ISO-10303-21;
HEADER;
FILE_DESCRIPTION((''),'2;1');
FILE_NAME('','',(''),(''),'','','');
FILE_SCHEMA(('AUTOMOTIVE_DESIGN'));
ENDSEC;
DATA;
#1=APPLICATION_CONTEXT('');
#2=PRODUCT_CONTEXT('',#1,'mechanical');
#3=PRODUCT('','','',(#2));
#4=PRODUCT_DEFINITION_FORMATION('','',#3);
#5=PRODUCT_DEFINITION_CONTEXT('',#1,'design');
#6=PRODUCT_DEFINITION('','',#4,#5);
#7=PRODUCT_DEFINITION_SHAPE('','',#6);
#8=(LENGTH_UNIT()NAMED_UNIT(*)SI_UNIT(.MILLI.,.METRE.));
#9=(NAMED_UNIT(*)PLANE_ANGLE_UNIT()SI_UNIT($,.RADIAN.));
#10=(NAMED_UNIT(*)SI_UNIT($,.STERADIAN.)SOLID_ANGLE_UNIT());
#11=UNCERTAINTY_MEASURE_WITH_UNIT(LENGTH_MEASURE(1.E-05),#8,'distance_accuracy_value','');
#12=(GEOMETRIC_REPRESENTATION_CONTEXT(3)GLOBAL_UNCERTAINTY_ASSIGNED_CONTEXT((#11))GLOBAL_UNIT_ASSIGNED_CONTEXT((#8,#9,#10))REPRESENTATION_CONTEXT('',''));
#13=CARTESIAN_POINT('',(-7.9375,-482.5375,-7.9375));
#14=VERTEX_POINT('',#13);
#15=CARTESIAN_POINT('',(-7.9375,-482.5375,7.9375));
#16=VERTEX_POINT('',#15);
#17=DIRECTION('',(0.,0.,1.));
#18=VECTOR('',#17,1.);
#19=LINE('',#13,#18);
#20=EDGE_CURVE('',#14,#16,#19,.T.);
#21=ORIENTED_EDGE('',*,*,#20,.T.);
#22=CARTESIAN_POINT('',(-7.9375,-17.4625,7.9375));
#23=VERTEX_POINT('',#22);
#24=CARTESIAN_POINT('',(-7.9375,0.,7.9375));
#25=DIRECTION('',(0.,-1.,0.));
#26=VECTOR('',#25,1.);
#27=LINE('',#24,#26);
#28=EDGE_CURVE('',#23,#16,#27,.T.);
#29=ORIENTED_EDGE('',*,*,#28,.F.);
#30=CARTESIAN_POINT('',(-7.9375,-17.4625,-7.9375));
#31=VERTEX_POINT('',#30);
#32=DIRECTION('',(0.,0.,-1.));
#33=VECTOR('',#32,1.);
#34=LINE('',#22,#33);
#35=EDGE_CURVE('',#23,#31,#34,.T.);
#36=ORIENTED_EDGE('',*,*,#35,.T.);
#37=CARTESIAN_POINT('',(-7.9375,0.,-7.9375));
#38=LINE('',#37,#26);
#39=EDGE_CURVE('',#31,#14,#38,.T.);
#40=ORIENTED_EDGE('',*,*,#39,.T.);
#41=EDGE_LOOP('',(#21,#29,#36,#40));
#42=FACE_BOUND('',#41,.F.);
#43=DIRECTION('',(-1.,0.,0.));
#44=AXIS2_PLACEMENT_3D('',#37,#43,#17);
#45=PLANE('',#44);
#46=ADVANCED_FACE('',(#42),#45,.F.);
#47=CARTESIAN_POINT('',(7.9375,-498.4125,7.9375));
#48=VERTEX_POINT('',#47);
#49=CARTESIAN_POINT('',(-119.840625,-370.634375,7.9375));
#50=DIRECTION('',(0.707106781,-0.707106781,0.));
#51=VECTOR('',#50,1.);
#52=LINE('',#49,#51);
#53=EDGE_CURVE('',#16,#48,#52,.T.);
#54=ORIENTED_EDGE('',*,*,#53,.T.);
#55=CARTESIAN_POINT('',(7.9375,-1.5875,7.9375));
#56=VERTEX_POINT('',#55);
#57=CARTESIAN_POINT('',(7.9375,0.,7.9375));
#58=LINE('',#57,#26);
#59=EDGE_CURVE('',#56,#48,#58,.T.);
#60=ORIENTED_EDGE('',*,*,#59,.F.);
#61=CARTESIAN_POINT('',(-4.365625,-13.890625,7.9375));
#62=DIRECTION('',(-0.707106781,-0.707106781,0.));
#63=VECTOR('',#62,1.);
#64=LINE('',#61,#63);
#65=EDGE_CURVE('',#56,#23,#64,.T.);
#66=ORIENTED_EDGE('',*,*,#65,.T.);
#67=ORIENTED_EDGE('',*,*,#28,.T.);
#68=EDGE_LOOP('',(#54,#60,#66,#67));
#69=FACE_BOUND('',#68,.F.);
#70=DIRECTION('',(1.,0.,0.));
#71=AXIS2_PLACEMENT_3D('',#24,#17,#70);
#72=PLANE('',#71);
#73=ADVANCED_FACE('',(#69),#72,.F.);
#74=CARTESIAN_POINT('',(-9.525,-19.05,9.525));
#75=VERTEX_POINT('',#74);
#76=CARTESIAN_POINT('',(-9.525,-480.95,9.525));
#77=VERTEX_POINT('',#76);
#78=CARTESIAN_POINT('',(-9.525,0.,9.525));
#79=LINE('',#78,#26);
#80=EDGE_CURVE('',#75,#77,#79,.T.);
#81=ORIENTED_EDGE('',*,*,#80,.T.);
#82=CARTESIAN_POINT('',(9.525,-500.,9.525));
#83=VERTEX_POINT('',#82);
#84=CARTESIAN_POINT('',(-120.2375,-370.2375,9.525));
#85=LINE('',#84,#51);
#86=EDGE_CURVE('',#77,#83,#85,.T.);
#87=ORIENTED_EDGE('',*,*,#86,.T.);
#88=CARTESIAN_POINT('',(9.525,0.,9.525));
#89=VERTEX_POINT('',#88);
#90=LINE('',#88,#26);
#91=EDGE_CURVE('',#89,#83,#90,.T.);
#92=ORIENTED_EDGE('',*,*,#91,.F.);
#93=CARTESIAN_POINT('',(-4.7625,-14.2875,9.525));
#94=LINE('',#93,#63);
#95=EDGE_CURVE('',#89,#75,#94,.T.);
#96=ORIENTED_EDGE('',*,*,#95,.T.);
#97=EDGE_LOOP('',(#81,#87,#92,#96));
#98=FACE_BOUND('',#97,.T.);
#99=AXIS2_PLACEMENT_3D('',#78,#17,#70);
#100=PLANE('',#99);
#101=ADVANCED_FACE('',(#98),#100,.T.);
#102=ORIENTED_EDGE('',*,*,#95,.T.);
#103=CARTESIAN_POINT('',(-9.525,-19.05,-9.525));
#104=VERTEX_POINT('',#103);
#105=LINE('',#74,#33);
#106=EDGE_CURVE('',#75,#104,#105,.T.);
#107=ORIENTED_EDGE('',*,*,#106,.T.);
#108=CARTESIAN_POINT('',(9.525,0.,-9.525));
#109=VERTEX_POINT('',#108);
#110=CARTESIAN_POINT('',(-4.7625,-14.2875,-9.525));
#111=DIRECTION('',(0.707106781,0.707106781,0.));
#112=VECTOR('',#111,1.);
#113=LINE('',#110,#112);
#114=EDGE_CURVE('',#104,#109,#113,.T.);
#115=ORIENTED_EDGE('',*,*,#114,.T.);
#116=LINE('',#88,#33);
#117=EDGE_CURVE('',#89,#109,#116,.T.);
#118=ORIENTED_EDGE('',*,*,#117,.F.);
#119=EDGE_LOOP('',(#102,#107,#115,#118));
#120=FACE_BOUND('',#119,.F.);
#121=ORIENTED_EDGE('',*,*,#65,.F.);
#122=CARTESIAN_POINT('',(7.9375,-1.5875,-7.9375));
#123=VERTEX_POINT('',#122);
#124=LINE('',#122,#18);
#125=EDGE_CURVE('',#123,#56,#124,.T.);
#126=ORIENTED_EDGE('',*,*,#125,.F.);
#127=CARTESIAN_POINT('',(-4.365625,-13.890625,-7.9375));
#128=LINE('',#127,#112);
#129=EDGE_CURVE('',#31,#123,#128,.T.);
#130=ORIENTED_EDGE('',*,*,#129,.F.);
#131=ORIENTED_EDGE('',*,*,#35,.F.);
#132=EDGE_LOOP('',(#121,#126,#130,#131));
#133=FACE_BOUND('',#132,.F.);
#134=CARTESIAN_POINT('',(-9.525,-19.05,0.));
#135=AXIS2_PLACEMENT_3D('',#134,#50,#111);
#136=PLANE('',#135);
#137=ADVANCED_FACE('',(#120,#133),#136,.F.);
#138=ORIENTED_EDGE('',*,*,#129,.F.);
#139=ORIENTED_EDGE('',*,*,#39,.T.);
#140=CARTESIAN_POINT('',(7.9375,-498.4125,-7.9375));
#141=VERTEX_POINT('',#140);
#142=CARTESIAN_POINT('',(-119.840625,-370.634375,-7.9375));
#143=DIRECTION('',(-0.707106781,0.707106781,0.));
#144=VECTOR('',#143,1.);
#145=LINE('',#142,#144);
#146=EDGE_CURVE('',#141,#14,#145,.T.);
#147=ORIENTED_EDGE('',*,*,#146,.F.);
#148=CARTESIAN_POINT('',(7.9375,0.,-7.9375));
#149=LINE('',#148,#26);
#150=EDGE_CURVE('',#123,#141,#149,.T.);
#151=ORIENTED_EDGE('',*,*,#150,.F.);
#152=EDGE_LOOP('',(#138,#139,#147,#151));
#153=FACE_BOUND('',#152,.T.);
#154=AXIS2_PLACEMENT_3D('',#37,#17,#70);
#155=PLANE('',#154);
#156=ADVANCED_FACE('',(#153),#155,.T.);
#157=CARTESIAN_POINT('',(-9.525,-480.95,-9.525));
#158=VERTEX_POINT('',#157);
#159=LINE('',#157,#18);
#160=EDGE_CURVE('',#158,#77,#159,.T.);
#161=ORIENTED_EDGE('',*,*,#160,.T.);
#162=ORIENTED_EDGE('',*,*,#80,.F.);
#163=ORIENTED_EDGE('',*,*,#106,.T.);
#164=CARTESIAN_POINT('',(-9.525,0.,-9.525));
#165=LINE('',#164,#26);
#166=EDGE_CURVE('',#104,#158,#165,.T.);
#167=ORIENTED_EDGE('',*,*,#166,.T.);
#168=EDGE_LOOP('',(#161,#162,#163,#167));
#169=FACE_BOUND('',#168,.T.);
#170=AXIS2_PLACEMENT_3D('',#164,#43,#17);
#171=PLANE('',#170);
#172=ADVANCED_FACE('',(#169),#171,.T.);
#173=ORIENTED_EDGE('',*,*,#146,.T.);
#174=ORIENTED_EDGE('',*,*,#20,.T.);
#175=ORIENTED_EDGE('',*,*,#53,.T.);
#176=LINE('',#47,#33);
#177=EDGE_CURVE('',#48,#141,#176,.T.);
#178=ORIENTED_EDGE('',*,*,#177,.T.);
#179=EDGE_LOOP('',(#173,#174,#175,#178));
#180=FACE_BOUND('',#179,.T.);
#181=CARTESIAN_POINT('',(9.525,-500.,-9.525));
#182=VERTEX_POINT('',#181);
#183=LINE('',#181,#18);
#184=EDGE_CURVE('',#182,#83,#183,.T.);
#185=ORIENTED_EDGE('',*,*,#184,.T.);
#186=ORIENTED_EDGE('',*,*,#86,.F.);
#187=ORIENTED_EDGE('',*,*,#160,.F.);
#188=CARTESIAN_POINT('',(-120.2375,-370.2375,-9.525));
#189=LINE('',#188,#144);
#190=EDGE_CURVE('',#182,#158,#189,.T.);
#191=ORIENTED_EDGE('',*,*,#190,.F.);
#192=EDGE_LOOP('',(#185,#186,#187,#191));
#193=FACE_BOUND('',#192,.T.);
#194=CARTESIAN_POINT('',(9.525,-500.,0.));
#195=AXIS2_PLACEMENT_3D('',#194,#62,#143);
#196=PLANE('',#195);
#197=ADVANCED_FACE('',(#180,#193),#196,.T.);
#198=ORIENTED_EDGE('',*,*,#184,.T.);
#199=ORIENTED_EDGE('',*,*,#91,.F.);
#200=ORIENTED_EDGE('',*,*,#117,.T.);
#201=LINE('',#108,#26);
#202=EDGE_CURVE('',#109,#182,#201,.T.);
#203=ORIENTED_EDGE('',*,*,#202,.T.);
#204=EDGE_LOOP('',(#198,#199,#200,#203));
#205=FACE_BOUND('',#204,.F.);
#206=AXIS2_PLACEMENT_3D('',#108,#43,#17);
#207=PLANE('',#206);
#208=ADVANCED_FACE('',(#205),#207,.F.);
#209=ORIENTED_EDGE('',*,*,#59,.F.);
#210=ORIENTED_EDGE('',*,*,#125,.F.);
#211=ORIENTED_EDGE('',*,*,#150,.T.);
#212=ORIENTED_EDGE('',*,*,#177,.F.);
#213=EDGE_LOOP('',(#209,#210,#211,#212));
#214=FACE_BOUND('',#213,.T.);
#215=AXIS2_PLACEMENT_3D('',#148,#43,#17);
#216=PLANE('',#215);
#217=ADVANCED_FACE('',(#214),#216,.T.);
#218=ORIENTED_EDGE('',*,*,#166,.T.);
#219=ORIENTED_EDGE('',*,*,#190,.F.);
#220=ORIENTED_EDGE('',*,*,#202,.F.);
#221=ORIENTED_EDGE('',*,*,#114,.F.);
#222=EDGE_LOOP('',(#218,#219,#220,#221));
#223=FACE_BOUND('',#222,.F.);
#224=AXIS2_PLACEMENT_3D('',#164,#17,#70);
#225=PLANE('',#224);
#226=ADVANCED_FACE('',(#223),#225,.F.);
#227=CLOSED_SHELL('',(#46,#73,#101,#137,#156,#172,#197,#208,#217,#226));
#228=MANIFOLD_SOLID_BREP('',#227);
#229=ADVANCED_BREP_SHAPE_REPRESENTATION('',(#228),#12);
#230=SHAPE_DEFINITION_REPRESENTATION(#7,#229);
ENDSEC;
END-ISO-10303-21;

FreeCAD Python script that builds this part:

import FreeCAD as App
import Part
import Sketcher

V = App.Vector
Q = App.Units.Quantity


def add_polygon(sketch, points):
    """Adds a closed chain of lines whose ends are joined by coincident constraints."""
    first, n = sketch.GeometryCount, len(points)
    for a, b in zip(points, points[1:] + points[:1]):
        sketch.addGeometry(Part.LineSegment(App.Vector(*a, 0), App.Vector(*b, 0)), False)
    for i in range(n):
        sketch.addConstraint(Sketcher.Constraint("Coincident", first + i, 2, first + (i + 1) % n, 1))

doc = App.newDocument("Part")
params = doc.addObject("Spreadsheet::Sheet", "Params")
for row, (alias, value) in enumerate([
    ("sketch1_width", "0.75 in"),
    ("sketch1_width2", "0.625 in"),
    ("pad1_length", "500 mm"),
    ("sketch2_width", "0.75 in"),
    ("sketch3_width", "0.75 in"),
], start=1):
    params.set(f"A{row}", alias)
    params.set(f"B{row}", "=" + value)
    params.setAlias(f"B{row}", alias)

body = doc.addObject("PartDesign::Body", "Body")

sketch1 = body.newObject("Sketcher::SketchObject", "Sketch")
sketch1.AttachmentSupport = (doc.getObject("XZ_Plane"), [""])
sketch1.MapMode = "FlatFace"
add_polygon(sketch1, [(-10, 10), (-10, -10), (10, -10), (10, 10)])
add_polygon(sketch1, [(8, -8), (-8, -8), (-8, 8), (8, 8)])
sketch1.addConstraint([
    Sketcher.Constraint("Vertical", 0),
    Sketcher.Constraint("Horizontal", 1),
    Sketcher.Constraint("Vertical", 2),
    Sketcher.Constraint("Horizontal", 3),
    Sketcher.Constraint("Horizontal", 4),
    Sketcher.Constraint("Vertical", 5),
    Sketcher.Constraint("Horizontal", 6),
    Sketcher.Constraint("Vertical", 7),
    Sketcher.Constraint("Symmetric", 0, 2, 2, 2, -1, 1),
    Sketcher.Constraint("Symmetric", 4, 2, 6, 2, -1, 1),
    Sketcher.Constraint("Equal", 3, 0),
    Sketcher.Constraint("Equal", 6, 5),
    Sketcher.Constraint("DistanceX", 1, 1, 1, 2, Q("0.75 in")),
    Sketcher.Constraint("DistanceX", 4, 2, 4, 1, Q("0.625 in")),
])
sketch1.setExpression("Constraints[20]", "Params.sketch1_width")
sketch1.setExpression("Constraints[21]", "Params.sketch1_width2")
pad1 = body.newObject("PartDesign::Pad", "Pad")
pad1.Profile = sketch1
pad1.setExpression("Length", "Params.pad1_length")

sketch2 = body.newObject("Sketcher::SketchObject", "Sketch001")
sketch2.AttachmentSupport = (doc.getObject("XY_Plane"), [""])
sketch2.MapMode = "FlatFace"
add_polygon(sketch2, [(10, 0), (-10, 0), (-10, -19)])
add_polygon(sketch2, [(-10, -481), (-10, -500), (10, -500)])
sketch2.addConstraint([
    Sketcher.Constraint("Horizontal", 0),
    Sketcher.Constraint("Vertical", 1),
    Sketcher.Constraint("Vertical", 3),
    Sketcher.Constraint("Horizontal", 4),
    Sketcher.Constraint("Symmetric", 0, 2, 2, 2, -1, 1),
    Sketcher.Constraint("Perpendicular", 2, 5),
    Sketcher.Constraint("Vertical", 1, 2, 3, 2),
    Sketcher.Constraint("Vertical", 2, 2, 4, 2),
    Sketcher.Constraint("Equal", 4, 1),
    Sketcher.Constraint("DistanceX", 0, 2, 0, 1, Q("0.75 in")),
    Sketcher.Constraint("DistanceY", 3, 2, -1, 1, Q("500 mm")),
])
sketch2.setExpression("Constraints[15]", "Params.sketch2_width")
pocket1 = body.newObject("PartDesign::Pocket", "Pocket")
pocket1.Profile = sketch2
pocket1.Type = "ThroughAll"
pocket1.Reversed = True

sketch3 = body.newObject("Sketcher::SketchObject", "Sketch002")
sketch3.AttachmentSupport = (doc.getObject("XY_Plane"), [""])
sketch3.MapMode = "FlatFace"
add_polygon(sketch3, [(10, 0), (-10, 0), (-10, -19)])
add_polygon(sketch3, [(-10, -481), (-10, -500), (10, -500)])
sketch3.addConstraint([
    Sketcher.Constraint("Horizontal", 0),
    Sketcher.Constraint("Vertical", 1),
    Sketcher.Constraint("Vertical", 3),
    Sketcher.Constraint("Horizontal", 4),
    Sketcher.Constraint("Symmetric", 0, 2, 2, 2, -1, 1),
    Sketcher.Constraint("Perpendicular", 2, 5),
    Sketcher.Constraint("Vertical", 1, 2, 3, 2),
    Sketcher.Constraint("Vertical", 2, 2, 4, 2),
    Sketcher.Constraint("Equal", 4, 1),
    Sketcher.Constraint("DistanceX", 0, 2, 0, 1, Q("0.75 in")),
    Sketcher.Constraint("DistanceY", 3, 2, -1, 1, Q("500 mm")),
])
sketch3.setExpression("Constraints[15]", "Params.sketch3_width")
pocket2 = body.newObject("PartDesign::Pocket", "Pocket001")
pocket2.Profile = sketch3
pocket2.Type = "ThroughAll"

doc.recompute()
